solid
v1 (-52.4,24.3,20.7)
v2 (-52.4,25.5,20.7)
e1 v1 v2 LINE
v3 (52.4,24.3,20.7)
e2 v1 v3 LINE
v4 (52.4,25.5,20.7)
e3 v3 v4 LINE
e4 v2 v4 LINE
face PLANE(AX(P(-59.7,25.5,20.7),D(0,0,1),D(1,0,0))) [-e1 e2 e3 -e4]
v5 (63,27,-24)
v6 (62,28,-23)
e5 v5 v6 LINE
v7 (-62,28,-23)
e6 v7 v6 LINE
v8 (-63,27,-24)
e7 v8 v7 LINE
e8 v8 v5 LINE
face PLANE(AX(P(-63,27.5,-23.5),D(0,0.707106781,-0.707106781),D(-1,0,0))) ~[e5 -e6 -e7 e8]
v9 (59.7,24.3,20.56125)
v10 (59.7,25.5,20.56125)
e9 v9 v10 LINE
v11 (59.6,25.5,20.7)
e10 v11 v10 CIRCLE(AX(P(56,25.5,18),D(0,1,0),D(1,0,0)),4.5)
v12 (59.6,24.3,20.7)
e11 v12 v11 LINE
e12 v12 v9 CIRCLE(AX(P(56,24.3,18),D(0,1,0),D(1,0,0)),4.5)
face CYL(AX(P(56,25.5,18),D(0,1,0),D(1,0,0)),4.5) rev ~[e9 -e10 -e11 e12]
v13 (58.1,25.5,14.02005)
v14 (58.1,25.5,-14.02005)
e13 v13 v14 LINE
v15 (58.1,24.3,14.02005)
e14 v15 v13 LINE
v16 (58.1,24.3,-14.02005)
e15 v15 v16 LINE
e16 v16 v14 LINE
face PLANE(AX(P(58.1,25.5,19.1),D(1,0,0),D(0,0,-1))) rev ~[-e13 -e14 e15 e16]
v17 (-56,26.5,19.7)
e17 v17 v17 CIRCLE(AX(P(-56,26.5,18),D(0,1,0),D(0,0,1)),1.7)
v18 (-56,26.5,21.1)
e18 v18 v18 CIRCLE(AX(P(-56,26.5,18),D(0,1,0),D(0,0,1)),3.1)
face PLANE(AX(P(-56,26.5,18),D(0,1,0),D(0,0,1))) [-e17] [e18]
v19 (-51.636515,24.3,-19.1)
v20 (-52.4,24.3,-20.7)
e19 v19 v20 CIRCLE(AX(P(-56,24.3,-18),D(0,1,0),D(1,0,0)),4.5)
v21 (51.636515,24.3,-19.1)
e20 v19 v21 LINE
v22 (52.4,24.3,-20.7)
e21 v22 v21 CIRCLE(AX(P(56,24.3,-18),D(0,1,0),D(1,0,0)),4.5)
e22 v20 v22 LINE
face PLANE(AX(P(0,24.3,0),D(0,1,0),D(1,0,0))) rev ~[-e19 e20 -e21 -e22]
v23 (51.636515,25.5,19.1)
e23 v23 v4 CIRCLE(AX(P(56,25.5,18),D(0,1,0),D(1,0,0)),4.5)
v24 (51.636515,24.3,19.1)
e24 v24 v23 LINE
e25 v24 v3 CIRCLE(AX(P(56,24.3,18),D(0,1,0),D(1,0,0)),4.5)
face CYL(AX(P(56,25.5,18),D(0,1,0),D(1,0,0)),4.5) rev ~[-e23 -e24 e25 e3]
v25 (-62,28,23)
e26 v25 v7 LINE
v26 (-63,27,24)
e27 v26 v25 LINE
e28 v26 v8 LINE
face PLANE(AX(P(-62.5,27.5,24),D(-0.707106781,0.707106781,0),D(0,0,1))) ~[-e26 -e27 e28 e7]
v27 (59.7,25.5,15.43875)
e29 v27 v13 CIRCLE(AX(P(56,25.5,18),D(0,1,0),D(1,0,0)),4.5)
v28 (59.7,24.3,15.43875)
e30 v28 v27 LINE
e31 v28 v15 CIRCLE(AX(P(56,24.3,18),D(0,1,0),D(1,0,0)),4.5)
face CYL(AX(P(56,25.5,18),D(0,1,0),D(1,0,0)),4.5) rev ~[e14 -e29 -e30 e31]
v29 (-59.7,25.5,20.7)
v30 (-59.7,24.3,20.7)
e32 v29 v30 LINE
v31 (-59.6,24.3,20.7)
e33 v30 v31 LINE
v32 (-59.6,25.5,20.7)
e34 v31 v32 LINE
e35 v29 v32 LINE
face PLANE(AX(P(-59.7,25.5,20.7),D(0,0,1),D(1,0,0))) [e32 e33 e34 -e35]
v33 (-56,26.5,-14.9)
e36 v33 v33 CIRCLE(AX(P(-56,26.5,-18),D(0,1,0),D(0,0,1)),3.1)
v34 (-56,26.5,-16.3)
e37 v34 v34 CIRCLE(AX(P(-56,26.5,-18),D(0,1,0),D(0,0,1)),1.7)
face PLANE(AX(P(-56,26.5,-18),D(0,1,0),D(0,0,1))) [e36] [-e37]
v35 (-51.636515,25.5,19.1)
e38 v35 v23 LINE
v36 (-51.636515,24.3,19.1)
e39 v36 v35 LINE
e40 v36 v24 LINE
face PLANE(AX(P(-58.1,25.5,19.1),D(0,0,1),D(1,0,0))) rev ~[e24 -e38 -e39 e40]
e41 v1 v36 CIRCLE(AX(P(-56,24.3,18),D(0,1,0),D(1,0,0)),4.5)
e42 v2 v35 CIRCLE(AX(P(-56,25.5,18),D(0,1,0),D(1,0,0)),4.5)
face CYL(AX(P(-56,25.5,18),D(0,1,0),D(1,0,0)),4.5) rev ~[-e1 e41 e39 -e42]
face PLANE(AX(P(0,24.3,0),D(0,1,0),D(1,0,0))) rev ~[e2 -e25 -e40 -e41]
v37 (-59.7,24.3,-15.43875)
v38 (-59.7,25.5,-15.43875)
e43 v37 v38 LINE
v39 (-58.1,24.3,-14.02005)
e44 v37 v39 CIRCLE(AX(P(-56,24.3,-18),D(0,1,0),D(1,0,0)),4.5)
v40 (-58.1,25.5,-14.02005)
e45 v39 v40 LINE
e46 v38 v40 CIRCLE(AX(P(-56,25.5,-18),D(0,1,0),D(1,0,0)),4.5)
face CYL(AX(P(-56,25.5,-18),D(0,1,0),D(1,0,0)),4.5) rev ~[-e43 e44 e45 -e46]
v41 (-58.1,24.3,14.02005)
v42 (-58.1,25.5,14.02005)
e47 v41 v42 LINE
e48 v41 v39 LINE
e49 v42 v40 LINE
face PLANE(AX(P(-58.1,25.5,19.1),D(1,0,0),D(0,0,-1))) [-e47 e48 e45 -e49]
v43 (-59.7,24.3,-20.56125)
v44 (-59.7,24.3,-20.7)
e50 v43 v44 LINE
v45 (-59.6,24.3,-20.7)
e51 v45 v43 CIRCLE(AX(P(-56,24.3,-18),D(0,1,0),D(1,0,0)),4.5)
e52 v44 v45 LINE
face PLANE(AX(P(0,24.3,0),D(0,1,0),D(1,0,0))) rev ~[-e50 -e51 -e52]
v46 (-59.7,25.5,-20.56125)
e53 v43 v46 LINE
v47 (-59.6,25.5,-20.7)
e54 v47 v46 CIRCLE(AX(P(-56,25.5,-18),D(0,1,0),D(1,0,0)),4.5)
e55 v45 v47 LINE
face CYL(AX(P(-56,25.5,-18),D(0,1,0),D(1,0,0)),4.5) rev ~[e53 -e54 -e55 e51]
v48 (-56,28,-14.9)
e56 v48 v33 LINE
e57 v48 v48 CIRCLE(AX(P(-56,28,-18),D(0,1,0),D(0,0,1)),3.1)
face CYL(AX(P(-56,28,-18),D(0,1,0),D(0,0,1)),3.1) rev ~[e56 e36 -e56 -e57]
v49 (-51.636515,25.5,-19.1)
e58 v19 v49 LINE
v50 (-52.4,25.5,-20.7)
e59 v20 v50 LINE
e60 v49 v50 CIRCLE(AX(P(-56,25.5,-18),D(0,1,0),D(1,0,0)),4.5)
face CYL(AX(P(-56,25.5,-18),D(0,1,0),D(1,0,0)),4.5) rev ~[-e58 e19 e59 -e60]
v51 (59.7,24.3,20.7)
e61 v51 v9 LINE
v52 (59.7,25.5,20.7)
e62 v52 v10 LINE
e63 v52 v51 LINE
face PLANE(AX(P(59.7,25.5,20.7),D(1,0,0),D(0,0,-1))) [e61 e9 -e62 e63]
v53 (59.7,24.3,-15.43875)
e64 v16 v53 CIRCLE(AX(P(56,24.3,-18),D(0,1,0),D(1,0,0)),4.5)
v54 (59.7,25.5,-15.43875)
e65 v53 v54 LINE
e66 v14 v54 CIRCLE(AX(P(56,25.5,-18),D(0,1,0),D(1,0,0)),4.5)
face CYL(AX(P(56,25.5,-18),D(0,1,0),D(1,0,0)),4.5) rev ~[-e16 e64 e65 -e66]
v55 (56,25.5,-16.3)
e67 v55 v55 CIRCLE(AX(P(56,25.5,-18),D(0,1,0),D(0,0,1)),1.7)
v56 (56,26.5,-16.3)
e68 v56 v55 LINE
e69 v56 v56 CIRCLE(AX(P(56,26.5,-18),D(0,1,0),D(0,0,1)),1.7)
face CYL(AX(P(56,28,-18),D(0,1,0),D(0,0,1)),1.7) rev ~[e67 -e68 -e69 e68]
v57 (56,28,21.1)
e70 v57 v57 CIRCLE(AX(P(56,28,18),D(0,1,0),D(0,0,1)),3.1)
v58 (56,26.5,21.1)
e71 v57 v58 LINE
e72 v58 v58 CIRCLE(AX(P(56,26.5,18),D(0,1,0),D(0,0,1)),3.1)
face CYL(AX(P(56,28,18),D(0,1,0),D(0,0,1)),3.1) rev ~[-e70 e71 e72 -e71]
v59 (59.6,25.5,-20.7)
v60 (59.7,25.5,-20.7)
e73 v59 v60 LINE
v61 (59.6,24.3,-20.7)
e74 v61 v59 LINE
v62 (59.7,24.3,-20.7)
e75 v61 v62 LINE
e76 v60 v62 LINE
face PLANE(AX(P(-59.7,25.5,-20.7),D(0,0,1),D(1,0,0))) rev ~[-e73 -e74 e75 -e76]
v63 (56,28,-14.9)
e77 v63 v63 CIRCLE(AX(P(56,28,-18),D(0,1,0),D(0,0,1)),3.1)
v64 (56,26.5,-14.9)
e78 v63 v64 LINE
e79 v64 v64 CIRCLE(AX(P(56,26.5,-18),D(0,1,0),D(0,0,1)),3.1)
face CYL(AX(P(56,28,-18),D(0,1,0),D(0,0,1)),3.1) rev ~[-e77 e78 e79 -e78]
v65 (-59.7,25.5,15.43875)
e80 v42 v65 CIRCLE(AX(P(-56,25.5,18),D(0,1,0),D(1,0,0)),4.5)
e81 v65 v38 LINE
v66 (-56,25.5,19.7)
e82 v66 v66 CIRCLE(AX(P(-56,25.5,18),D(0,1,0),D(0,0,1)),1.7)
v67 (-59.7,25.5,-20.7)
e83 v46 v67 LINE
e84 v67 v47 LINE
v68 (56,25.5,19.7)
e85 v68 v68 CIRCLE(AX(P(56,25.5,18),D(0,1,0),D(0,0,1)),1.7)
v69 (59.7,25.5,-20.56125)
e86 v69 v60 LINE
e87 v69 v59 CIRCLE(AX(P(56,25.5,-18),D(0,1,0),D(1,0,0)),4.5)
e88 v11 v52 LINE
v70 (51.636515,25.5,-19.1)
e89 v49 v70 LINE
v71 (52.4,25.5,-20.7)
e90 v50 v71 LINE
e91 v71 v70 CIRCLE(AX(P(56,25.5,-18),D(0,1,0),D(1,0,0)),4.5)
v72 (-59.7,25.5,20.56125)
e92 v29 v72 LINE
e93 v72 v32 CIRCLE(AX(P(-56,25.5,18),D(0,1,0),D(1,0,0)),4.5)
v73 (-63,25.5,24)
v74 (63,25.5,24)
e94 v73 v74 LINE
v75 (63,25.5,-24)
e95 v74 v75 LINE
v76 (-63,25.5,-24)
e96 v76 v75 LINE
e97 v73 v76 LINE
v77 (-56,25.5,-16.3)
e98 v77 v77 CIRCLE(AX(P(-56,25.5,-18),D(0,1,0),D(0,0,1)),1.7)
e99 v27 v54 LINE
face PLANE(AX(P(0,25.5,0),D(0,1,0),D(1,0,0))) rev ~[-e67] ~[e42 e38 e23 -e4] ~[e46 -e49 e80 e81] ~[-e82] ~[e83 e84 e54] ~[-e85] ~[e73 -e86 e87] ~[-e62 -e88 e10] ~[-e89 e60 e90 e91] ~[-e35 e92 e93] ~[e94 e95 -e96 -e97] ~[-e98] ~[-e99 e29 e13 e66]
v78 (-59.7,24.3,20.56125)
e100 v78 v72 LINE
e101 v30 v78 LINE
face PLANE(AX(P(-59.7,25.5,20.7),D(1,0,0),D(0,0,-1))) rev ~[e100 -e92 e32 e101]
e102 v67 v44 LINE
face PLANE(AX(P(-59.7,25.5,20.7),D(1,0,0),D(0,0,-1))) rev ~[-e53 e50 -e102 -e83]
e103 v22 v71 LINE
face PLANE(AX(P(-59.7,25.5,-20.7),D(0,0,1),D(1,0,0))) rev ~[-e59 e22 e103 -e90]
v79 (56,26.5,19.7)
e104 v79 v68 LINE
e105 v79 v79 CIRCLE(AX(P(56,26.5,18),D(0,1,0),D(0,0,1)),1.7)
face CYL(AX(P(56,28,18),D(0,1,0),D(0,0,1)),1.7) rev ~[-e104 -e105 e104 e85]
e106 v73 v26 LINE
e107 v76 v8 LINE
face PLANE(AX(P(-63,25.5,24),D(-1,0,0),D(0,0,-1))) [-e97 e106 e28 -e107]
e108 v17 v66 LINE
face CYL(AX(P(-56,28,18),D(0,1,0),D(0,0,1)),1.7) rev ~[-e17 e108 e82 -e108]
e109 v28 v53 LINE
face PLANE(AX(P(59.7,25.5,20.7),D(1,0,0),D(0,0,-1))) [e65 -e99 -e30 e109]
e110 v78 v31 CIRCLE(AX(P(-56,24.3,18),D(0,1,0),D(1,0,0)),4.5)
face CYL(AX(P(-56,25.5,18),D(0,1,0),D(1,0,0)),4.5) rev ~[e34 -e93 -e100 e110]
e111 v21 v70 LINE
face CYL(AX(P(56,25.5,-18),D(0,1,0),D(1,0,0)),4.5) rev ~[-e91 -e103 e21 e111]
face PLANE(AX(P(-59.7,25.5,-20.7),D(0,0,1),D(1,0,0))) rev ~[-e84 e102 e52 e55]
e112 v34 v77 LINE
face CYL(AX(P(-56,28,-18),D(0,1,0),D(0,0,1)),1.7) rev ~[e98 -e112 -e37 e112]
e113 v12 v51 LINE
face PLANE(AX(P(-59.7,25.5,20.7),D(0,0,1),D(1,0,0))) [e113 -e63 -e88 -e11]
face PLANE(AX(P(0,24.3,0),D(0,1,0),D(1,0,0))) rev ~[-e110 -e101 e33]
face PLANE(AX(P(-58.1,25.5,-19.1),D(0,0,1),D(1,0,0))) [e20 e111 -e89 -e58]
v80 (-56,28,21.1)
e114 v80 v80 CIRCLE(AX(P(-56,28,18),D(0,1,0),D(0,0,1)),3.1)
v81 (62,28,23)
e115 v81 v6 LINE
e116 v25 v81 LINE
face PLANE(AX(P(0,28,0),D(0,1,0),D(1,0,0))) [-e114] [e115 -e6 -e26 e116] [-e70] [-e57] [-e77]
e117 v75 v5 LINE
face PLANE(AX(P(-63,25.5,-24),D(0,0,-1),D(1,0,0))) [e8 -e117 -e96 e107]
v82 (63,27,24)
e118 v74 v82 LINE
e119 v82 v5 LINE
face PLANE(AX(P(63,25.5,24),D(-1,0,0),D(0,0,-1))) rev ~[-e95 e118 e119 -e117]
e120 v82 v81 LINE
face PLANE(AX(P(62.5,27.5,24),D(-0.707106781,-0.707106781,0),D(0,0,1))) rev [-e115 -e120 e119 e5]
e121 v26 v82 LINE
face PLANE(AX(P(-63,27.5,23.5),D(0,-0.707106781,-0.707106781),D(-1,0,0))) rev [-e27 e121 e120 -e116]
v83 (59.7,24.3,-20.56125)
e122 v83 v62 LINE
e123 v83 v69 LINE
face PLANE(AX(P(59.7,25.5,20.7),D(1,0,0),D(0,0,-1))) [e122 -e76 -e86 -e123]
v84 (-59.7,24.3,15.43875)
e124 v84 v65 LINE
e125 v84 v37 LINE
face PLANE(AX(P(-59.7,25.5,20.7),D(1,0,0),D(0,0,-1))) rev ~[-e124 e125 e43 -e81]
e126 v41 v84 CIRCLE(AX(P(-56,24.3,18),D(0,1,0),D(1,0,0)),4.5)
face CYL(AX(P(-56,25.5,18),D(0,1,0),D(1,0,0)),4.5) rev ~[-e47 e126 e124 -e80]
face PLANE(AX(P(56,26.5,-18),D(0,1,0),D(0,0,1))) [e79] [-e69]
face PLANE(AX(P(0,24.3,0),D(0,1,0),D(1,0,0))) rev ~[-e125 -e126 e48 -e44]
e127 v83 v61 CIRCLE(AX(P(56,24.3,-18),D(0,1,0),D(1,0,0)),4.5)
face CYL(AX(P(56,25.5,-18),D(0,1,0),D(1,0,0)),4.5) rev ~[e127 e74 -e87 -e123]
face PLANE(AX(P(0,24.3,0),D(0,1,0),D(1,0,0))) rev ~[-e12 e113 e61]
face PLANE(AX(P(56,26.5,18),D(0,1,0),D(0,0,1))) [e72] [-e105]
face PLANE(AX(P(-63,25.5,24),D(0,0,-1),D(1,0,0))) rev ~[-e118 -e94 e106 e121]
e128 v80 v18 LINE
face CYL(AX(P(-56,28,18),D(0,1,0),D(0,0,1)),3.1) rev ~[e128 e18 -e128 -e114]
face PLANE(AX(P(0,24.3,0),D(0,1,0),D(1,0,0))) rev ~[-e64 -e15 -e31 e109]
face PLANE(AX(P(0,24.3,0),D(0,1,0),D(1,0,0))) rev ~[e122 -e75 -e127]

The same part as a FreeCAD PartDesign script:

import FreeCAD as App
import Part
import Sketcher

V = App.Vector
Q = App.Units.Quantity


def edges_at(feature, points):
    """Names of the edges that pass closest to the given points."""
    edges = feature.Shape.Edges
    near = lambda p: min(range(len(edges)), key=lambda i: edges[i].distToShape(Part.Vertex(*p))[0])
    return sorted({f"Edge{near(p) + 1}" for p in points})

doc = App.newDocument("Part")
body = doc.addObject("PartDesign::Body", "Body")

# Sketch on XZ plane
sketch1 = body.newObject("Sketcher::SketchObject", "Sketch")
sketch1.AttachmentSupport = (doc.getObject("XZ_Plane"), [""])
sketch1.MapMode = "FlatFace"
sketch1.AttachmentOffset = App.Placement(V(0, 0, -25.5), App.Rotation())
sketch1.addGeometry(Part.LineSegment(V(-63, -24, 0), V(-63, 24, 0)), False)
sketch1.addGeometry(Part.LineSegment(V(-63, 24, 0), V(63, 24, 0)), False)
sketch1.addGeometry(Part.LineSegment(V(63, 24, 0), V(63, -24, 0)), False)
sketch1.addGeometry(Part.LineSegment(V(63, -24, 0), V(-63, -24, 0)), False)
sketch1.addConstraint(Sketcher.Constraint("Coincident", 0, 2, 1, 1))
sketch1.addConstraint(Sketcher.Constraint("Coincident", 1, 2, 2, 1))
sketch1.addConstraint(Sketcher.Constraint("Coincident", 2, 2, 3, 1))
sketch1.addConstraint(Sketcher.Constraint("Coincident", 3, 2, 0, 1))
sketch1.addConstraint(Sketcher.Constraint("Vertical", 0))
sketch1.addConstraint(Sketcher.Constraint("Horizontal", 1))
sketch1.addConstraint(Sketcher.Constraint("Vertical", 2))
sketch1.addConstraint(Sketcher.Constraint("Horizontal", 3))
sketch1.addConstraint(Sketcher.Constraint("Symmetric", 0, 2, 2, 2, -1, 1))
sketch1.addConstraint(Sketcher.Constraint("DistanceX", 1, 1, 1, 2, Q("126 mm")))
sketch1.addConstraint(Sketcher.Constraint("DistanceY", 0, 1, 0, 2, Q("48 mm")))
pad1 = body.newObject("PartDesign::Pad", "Pad")
pad1.Profile = sketch1
pad1.Length = 2.5
pad1.Reversed = True
doc.recompute()

chamfer = body.newObject("PartDesign::Chamfer", "Chamfer")
chamfer.Base = (pad1, edges_at(pad1, [
    (63, 28, 0),
    (0, 28, -24),
    (-63, 28, 0),
    (0, 28, 24),
]))
chamfer.Size = 1

# Sketch on XZ plane
sketch2 = body.newObject("Sketcher::SketchObject", "Sketch001")
sketch2.AttachmentSupport = (doc.getObject("XZ_Plane"), [""])
sketch2.MapMode = "FlatFace"
sketch2.AttachmentOffset = App.Placement(V(0, 0, -25.5), App.Rotation())
sketch2.addGeometry(Part.LineSegment(V(-59.7, -20.7, 0), V(-59.7, 20.7, 0)), False)
sketch2.addGeometry(Part.LineSegment(V(-59.7, 20.7, 0), V(59.7, 20.7, 0)), False)
sketch2.addGeometry(Part.LineSegment(V(59.7, 20.7, 0), V(59.7, -20.7, 0)), False)
sketch2.addGeometry(Part.LineSegment(V(59.7, -20.7, 0), V(-59.7, -20.7, 0)), False)
sketch2.addGeometry(Part.LineSegment(V(58.1, 19.1, 0), V(-58.1, 19.1, 0)), False)
sketch2.addGeometry(Part.LineSegment(V(-58.1, 19.1, 0), V(-58.1, -19.1, 0)), False)
sketch2.addGeometry(Part.LineSegment(V(-58.1, -19.1, 0), V(58.1, -19.1, 0)), False)
sketch2.addGeometry(Part.LineSegment(V(58.1, -19.1, 0), V(58.1, 19.1, 0)), False)
sketch2.addConstraint(Sketcher.Constraint("Coincident", 0, 2, 1, 1))
sketch2.addConstraint(Sketcher.Constraint("Coincident", 1, 2, 2, 1))
sketch2.addConstraint(Sketcher.Constraint("Coincident", 2, 2, 3, 1))
sketch2.addConstraint(Sketcher.Constraint("Coincident", 3, 2, 0, 1))
sketch2.addConstraint(Sketcher.Constraint("Coincident", 4, 2, 5, 1))
sketch2.addConstraint(Sketcher.Constraint("Coincident", 5, 2, 6, 1))
sketch2.addConstraint(Sketcher.Constraint("Coincident", 6, 2, 7, 1))
sketch2.addConstraint(Sketcher.Constraint("Coincident", 7, 2, 4, 1))
sketch2.addConstraint(Sketcher.Constraint("Vertical", 0))
sketch2.addConstraint(Sketcher.Constraint("Horizontal", 1))
sketch2.addConstraint(Sketcher.Constraint("Vertical", 2))
sketch2.addConstraint(Sketcher.Constraint("Horizontal", 3))
sketch2.addConstraint(Sketcher.Constraint("Horizontal", 4))
sketch2.addConstraint(Sketcher.Constraint("Vertical", 5))
sketch2.addConstraint(Sketcher.Constraint("Horizontal", 6))
sketch2.addConstraint(Sketcher.Constraint("Vertical", 7))
sketch2.addConstraint(Sketcher.Constraint("Symmetric", 0, 2, 2, 2, -1, 1))
sketch2.addConstraint(Sketcher.Constraint("Symmetric", 4, 2, 6, 2, -1, 1))
sketch2.addConstraint(Sketcher.Constraint("DistanceX", 1, 1, 1, 2, Q("119.4 mm")))
sketch2.addConstraint(Sketcher.Constraint("DistanceX", 4, 2, 4, 1, Q("116.2 mm")))
sketch2.addConstraint(Sketcher.Constraint("DistanceY", 0, 1, 0, 2, Q("41.4 mm")))
sketch2.addConstraint(Sketcher.Constraint("DistanceY", 5, 2, 5, 1, Q("38.2 mm")))
pad2 = body.newObject("PartDesign::Pad", "Pad001")
pad2.Profile = sketch2
pad2.Length = 1.2

# Sketch on XZ plane
sketch3 = body.newObject("Sketcher::SketchObject", "Sketch002")
sketch3.AttachmentSupport = (doc.getObject("XZ_Plane"), [""])
sketch3.MapMode = "FlatFace"
sketch3.AttachmentOffset = App.Placement(V(0, 0, -25.5), App.Rotation())
sketch3.addGeometry(Part.Circle(V(-56, -18, 0), V(0, 0, 1), 4.5), False)
sketch3.addGeometry(Part.Circle(V(-56, 18, 0), V(0, 0, 1), 4.5), False)
sketch3.addGeometry(Part.Circle(V(56, -18, 0), V(0, 0, 1), 4.5), False)
sketch3.addGeometry(Part.Circle(V(56, 18, 0), V(0, 0, 1), 4.5), False)
sketch3.addConstraint(Sketcher.Constraint("Equal", 0, 1))
sketch3.addConstraint(Sketcher.Constraint("Equal", 1, 2))
sketch3.addConstraint(Sketcher.Constraint("Equal", 2, 3))
sketch3.addConstraint(Sketcher.Constraint("Symmetric", 1, 3, 2, 3, -1, 1))
sketch3.addConstraint(Sketcher.Constraint("Symmetric", 0, 3, 3, 3, -1, 1))
sketch3.addConstraint(Sketcher.Constraint("Symmetric", 0, 3, 2, 3, -2))
sketch3.addConstraint(Sketcher.Constraint("Diameter", 0, Q("9 mm")))
sketch3.addConstraint(Sketcher.Constraint("DistanceX", 0, 3, -1, 1, Q("56 mm")))
sketch3.addConstraint(Sketcher.Constraint("DistanceY", 0, 3, -1, 1, Q("18 mm")))
pocket1 = body.newObject("PartDesign::Pocket", "Pocket")
pocket1.Profile = sketch3
pocket1.Length = 1.5
pocket1.Reversed = True

# Sketch on XZ plane
sketch4 = body.newObject("Sketcher::SketchObject", "Sketch003")
sketch4.AttachmentSupport = (doc.getObject("XZ_Plane"), [""])
sketch4.MapMode = "FlatFace"
sketch4.AttachmentOffset = App.Placement(V(0, 0, -28), App.Rotation())
sketch4.addGeometry(Part.Circle(V(-56, -18, 0), V(0, 0, 1), 1.7), False)
sketch4.addGeometry(Part.Circle(V(-56, 18, 0), V(0, 0, 1), 1.7), False)
sketch4.addGeometry(Part.Circle(V(56, -18, 0), V(0, 0, 1), 1.7), False)
sketch4.addGeometry(Part.Circle(V(56, 18, 0), V(0, 0, 1), 1.7), False)
sketch4.addConstraint(Sketcher.Constraint("Equal", 0, 1))
sketch4.addConstraint(Sketcher.Constraint("Equal", 1, 2))
sketch4.addConstraint(Sketcher.Constraint("Equal", 2, 3))
sketch4.addConstraint(Sketcher.Constraint("Symmetric", 1, 3, 2, 3, -1, 1))
sketch4.addConstraint(Sketcher.Constraint("Symmetric", 0, 3, 3, 3, -1, 1))
sketch4.addConstraint(Sketcher.Constraint("Symmetric", 0, 3, 2, 3, -2))
sketch4.addConstraint(Sketcher.Constraint("Diameter", 0, Q("3.4 mm")))
sketch4.addConstraint(Sketcher.Constraint("DistanceX", 0, 3, -1, 1, Q("56 mm")))
sketch4.addConstraint(Sketcher.Constraint("DistanceY", 0, 3, -1, 1, Q("18 mm")))
pocket2 = body.newObject("PartDesign::Pocket", "Pocket001")
pocket2.Profile = sketch4
pocket2.Type = "ThroughAll"
pocket2.Reversed = True

# Sketch on XZ plane
sketch5 = body.newObject("Sketcher::SketchObject", "Sketch004")
sketch5.AttachmentSupport = (doc.getObject("XZ_Plane"), [""])
sketch5.MapMode = "FlatFace"
sketch5.AttachmentOffset = App.Placement(V(0, 0, -28), App.Rotation())
sketch5.addGeometry(Part.Circle(V(-56, -18, 0), V(0, 0, 1), 3.1), False)
sketch5.addGeometry(Part.Circle(V(-56, 18, 0), V(0, 0, 1), 3.1), False)
sketch5.addGeometry(Part.Circle(V(56, -18, 0), V(0, 0, 1), 3.1), False)
sketch5.addGeometry(Part.Circle(V(56, 18, 0), V(0, 0, 1), 3.1), False)
sketch5.addConstraint(Sketcher.Constraint("Equal", 0, 1))
sketch5.addConstraint(Sketcher.Constraint("Equal", 1, 2))
sketch5.addConstraint(Sketcher.Constraint("Equal", 2, 3))
sketch5.addConstraint(Sketcher.Constraint("Symmetric", 1, 3, 2, 3, -1, 1))
sketch5.addConstraint(Sketcher.Constraint("Symmetric", 0, 3, 3, 3, -1, 1))
sketch5.addConstraint(Sketcher.Constraint("Symmetric", 0, 3, 2, 3, -2))
sketch5.addConstraint(Sketcher.Constraint("Diameter", 0, Q("6.2 mm")))
sketch5.addConstraint(Sketcher.Constraint("DistanceX", 0, 3, -1, 1, Q("56 mm")))
sketch5.addConstraint(Sketcher.Constraint("DistanceY", 0, 3, -1, 1, Q("18 mm")))
pocket3 = body.newObject("PartDesign::Pocket", "Pocket002")
pocket3.Profile = sketch5
pocket3.Length = 1.5
pocket3.Reversed = True

doc.recompute()
